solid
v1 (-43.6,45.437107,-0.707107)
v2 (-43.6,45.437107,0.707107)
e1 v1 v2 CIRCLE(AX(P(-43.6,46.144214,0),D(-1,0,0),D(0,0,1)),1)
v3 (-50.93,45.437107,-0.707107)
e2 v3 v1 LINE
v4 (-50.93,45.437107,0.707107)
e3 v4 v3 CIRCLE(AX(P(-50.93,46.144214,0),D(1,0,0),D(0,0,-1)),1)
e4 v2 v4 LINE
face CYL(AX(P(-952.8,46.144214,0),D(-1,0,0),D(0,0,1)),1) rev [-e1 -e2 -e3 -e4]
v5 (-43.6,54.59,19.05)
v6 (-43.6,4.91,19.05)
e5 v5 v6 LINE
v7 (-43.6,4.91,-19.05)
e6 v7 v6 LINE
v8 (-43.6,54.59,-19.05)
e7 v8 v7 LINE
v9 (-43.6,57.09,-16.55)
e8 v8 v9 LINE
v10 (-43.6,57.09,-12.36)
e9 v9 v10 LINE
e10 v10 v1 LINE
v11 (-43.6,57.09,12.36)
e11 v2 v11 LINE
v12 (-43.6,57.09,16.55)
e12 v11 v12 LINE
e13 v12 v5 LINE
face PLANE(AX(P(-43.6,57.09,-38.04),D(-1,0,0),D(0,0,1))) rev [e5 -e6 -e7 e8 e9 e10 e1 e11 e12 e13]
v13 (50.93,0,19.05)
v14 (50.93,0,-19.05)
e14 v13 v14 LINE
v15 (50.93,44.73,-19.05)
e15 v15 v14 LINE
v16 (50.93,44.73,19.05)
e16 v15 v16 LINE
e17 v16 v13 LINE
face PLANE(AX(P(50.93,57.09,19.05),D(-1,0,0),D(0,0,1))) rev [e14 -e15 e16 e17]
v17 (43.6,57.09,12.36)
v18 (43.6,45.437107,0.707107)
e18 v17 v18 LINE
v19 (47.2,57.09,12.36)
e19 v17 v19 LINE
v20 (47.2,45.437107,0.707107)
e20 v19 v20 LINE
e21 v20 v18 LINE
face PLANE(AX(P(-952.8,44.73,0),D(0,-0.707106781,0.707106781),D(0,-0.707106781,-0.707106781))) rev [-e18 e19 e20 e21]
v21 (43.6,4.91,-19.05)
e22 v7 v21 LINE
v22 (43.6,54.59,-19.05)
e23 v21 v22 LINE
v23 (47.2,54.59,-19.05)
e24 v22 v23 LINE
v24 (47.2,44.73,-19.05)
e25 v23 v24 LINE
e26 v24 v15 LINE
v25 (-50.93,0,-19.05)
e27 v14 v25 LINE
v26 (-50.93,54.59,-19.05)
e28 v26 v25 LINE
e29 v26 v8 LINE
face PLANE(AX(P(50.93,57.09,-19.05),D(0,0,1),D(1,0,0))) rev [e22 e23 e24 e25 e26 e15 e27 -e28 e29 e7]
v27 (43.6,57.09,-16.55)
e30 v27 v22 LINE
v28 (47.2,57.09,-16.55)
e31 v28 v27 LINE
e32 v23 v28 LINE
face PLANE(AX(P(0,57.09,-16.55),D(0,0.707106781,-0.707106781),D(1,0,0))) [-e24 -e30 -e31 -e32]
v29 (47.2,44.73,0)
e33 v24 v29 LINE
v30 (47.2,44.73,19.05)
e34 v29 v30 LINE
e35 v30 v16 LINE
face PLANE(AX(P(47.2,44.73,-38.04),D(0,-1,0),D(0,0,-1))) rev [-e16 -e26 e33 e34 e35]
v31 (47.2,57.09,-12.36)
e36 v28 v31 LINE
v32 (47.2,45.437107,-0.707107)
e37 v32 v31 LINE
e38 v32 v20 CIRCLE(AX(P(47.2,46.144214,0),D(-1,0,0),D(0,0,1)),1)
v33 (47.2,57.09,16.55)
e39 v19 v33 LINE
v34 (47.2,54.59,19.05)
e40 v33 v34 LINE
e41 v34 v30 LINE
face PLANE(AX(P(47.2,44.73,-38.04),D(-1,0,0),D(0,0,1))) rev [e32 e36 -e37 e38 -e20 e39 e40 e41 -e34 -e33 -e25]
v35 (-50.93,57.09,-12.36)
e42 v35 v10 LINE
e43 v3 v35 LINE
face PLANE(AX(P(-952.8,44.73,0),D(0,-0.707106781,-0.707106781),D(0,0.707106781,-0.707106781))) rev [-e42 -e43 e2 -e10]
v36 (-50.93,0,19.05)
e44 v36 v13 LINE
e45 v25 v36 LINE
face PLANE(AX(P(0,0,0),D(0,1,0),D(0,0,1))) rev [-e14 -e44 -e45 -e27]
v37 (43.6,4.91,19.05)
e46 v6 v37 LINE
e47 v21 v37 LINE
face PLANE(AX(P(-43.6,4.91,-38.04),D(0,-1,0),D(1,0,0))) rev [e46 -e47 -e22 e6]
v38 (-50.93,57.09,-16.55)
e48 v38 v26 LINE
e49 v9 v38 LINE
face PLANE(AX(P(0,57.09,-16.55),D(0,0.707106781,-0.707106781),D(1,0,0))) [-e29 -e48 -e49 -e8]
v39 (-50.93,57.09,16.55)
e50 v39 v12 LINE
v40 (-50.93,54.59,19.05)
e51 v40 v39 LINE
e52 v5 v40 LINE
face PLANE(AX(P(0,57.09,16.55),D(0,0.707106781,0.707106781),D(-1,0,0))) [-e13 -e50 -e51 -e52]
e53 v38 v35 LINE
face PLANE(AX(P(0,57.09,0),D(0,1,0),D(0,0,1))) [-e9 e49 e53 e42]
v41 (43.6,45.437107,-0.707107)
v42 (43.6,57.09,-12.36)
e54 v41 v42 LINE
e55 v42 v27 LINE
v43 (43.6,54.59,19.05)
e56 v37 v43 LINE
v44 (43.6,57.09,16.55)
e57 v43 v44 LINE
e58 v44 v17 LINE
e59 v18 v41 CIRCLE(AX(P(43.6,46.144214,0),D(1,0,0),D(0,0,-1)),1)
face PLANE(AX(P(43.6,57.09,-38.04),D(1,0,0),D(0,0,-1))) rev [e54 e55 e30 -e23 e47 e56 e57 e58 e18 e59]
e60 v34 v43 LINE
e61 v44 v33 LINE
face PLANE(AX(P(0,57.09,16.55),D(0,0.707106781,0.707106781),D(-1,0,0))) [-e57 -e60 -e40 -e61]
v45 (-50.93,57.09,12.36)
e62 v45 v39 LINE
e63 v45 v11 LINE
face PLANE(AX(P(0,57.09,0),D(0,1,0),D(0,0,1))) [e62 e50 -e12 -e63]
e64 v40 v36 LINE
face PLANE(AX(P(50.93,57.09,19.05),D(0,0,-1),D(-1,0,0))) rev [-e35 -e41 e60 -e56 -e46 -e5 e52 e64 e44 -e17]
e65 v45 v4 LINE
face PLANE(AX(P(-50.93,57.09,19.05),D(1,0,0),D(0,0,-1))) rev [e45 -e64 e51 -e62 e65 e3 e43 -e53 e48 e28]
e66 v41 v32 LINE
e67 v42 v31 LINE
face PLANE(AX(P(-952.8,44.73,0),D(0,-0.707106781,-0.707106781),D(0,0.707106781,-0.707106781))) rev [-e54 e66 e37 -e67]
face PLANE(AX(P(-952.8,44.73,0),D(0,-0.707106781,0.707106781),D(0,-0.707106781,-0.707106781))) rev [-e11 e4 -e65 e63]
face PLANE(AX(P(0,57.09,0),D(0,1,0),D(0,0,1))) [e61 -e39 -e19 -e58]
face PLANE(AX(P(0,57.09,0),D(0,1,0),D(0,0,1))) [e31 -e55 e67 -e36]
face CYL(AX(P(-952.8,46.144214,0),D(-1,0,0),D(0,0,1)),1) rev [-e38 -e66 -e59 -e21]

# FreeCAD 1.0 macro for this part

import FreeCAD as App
import Part
import Sketcher
from FreeCAD import Vector
Q = App.Units.Quantity


def edges_at(feature, points):
    """Names of the edges that pass closest to the given points."""
    edges = feature.Shape.Edges
    near = lambda p: min(range(len(edges)), key=lambda i: edges[i].distToShape(Part.Vertex(*p))[0])
    return sorted({f"Edge{near(p) + 1}" for p in points})


def add_polygon(sketch, points):
    """Adds a closed chain of lines whose ends are joined by coincident constraints."""
    first, n = sketch.GeometryCount, len(points)
    for a, b in zip(points, points[1:] + points[:1]):
        sketch.addGeometry(Part.LineSegment(App.Vector(*a, 0), App.Vector(*b, 0)), False)
    for i in range(n):
        sketch.addConstraint(Sketcher.Constraint("Coincident", first + i, 2, first + (i + 1) % n, 1))

doc = App.newDocument("Part")
body = doc.addObject("PartDesign::Body", "Body")

# Sketch on XZ plane
sketch1 = body.newObject("Sketcher::SketchObject", "Sketch")
sketch1.AttachmentSupport = (doc.getObject("XZ_Plane"), [""])
sketch1.MapMode = "FlatFace"
add_polygon(sketch1, [(-51, -19), (-51, 19), (51, 19), (51, -19)])  # lines 0-3
sketch1.addConstraint(Sketcher.Constraint("Vertical", 0))
sketch1.addConstraint(Sketcher.Constraint("Horizontal", 1))
sketch1.addConstraint(Sketcher.Constraint("Vertical", 2))
sketch1.addConstraint(Sketcher.Constraint("Horizontal", 3))
sketch1.addConstraint(Sketcher.Constraint("Symmetric", 0, 2, 2, 2, -1, 1))
sketch1.addConstraint(Sketcher.Constraint("DistanceY", 0, 1, 0, 2, Q("38.1 mm")))
sketch1.addConstraint(Sketcher.Constraint("DistanceX", 1, 1, 1, 2, Q("101.86 mm")))
pad1 = body.newObject("PartDesign::Pad", "Pad")
pad1.Profile = sketch1
pad1.Length = 57.09
pad1.Reversed = True

# Sketch on XY plane
sketch2 = body.newObject("Sketcher::SketchObject", "Sketch001")
sketch2.AttachmentSupport = (doc.getObject("XY_Plane"), [""])
sketch2.MapMode = "FlatFace"
sketch2.AttachmentOffset = App.Placement(Vector(0, 0, 19.05), App.Rotation())
add_polygon(sketch2, [(-44, 57), (-44, 5), (44, 5), (44, 57)])  # lines 0-3
sketch2.addConstraint(Sketcher.Constraint("Vertical", 0))
sketch2.addConstraint(Sketcher.Constraint("Horizontal", 1))
sketch2.addConstraint(Sketcher.Constraint("Vertical", 2))
sketch2.addConstraint(Sketcher.Constraint("Horizontal", 3))
sketch2.addConstraint(Sketcher.Constraint("DistanceX", 1, 1, 1, 2, Q("87.2 mm")))
sketch2.addConstraint(Sketcher.Constraint("DistanceY", 0, 2, 0, 1, Q("52.18 mm")))
sketch2.addConstraint(Sketcher.Constraint("DistanceX", 0, 2, -1, 1, Q("43.6 mm")))
sketch2.addConstraint(Sketcher.Constraint("DistanceY", -1, 1, 0, 2, Q("4.91 mm")))
pocket1 = body.newObject("PartDesign::Pocket", "Pocket")
pocket1.Profile = sketch2
pocket1.Length = 57.09

# Sketch on XY plane
sketch3 = body.newObject("Sketcher::SketchObject", "Sketch002")
sketch3.AttachmentSupport = (doc.getObject("XY_Plane"), [""])
sketch3.MapMode = "FlatFace"
sketch3.AttachmentOffset = App.Placement(Vector(0, 0, 19.05), App.Rotation())
add_polygon(sketch3, [(47.2, 57.1), (47.2, 44.7), (50.9, 44.7), (50.9, 57.1)])  # lines 0-3
sketch3.addConstraint(Sketcher.Constraint("Vertical", 0))
sketch3.addConstraint(Sketcher.Constraint("Horizontal", 1))
sketch3.addConstraint(Sketcher.Constraint("Vertical", 2))
sketch3.addConstraint(Sketcher.Constraint("Horizontal", 3))
sketch3.addConstraint(Sketcher.Constraint("DistanceX", 1, 1, 1, 2, Q("3.73 mm")))
sketch3.addConstraint(Sketcher.Constraint("DistanceY", 0, 2, 0, 1, Q("12.36 mm")))
sketch3.addConstraint(Sketcher.Constraint("DistanceX", -1, 1, 0, 2, Q("47.2 mm")))
sketch3.addConstraint(Sketcher.Constraint("DistanceY", -1, 1, 0, 2, Q("44.73 mm")))
pocket2 = body.newObject("PartDesign::Pocket", "Pocket001")
pocket2.Profile = sketch3
pocket2.Length = 57.09

# Sketch on YZ plane
sketch4 = body.newObject("Sketcher::SketchObject", "Sketch003")
sketch4.AttachmentSupport = (doc.getObject("YZ_Plane"), [""])
sketch4.MapMode = "FlatFace"
sketch4.AttachmentOffset = App.Placement(Vector(0, 0, 47.2), App.Rotation())
add_polygon(sketch4, [(57, 12), (45, 0), (57, -12)])  # lines 0-2
sketch4.addConstraint(Sketcher.Constraint("Vertical", 2))
sketch4.addConstraint(Sketcher.Constraint("PointOnObject", 0, 2, -1))
sketch4.addConstraint(Sketcher.Constraint("Perpendicular", 0, 1))
sketch4.addConstraint(Sketcher.Constraint("Equal", 0, 1))
sketch4.addConstraint(Sketcher.Constraint("DistanceY", 2, 1, 2, 2, Q("24.72 mm")))
sketch4.addConstraint(Sketcher.Constraint("DistanceX", -1, 1, 0, 2, Q("44.73 mm")))
pocket3 = body.newObject("PartDesign::Pocket", "Pocket002")
pocket3.Profile = sketch4
pocket3.Length = 1000
doc.recompute()

fillet = body.newObject("PartDesign::Fillet", "Fillet")
fillet.Base = (pocket3, edges_at(pocket3, [(-47.265, 44.73, 0), (45.4, 44.73, 0)]))
fillet.Radius = 1
doc.recompute()

chamfer = body.newObject("PartDesign::Chamfer", "Chamfer")
chamfer.Base = (fillet, edges_at(fillet, [
    (45.4, 57.09, 19.05),
    (-47.265, 57.09, -19.05),
    (45.4, 57.09, -19.05),
    (-47.265, 57.09, 19.05),
]))
chamfer.Size = 2.5

doc.recompute()
